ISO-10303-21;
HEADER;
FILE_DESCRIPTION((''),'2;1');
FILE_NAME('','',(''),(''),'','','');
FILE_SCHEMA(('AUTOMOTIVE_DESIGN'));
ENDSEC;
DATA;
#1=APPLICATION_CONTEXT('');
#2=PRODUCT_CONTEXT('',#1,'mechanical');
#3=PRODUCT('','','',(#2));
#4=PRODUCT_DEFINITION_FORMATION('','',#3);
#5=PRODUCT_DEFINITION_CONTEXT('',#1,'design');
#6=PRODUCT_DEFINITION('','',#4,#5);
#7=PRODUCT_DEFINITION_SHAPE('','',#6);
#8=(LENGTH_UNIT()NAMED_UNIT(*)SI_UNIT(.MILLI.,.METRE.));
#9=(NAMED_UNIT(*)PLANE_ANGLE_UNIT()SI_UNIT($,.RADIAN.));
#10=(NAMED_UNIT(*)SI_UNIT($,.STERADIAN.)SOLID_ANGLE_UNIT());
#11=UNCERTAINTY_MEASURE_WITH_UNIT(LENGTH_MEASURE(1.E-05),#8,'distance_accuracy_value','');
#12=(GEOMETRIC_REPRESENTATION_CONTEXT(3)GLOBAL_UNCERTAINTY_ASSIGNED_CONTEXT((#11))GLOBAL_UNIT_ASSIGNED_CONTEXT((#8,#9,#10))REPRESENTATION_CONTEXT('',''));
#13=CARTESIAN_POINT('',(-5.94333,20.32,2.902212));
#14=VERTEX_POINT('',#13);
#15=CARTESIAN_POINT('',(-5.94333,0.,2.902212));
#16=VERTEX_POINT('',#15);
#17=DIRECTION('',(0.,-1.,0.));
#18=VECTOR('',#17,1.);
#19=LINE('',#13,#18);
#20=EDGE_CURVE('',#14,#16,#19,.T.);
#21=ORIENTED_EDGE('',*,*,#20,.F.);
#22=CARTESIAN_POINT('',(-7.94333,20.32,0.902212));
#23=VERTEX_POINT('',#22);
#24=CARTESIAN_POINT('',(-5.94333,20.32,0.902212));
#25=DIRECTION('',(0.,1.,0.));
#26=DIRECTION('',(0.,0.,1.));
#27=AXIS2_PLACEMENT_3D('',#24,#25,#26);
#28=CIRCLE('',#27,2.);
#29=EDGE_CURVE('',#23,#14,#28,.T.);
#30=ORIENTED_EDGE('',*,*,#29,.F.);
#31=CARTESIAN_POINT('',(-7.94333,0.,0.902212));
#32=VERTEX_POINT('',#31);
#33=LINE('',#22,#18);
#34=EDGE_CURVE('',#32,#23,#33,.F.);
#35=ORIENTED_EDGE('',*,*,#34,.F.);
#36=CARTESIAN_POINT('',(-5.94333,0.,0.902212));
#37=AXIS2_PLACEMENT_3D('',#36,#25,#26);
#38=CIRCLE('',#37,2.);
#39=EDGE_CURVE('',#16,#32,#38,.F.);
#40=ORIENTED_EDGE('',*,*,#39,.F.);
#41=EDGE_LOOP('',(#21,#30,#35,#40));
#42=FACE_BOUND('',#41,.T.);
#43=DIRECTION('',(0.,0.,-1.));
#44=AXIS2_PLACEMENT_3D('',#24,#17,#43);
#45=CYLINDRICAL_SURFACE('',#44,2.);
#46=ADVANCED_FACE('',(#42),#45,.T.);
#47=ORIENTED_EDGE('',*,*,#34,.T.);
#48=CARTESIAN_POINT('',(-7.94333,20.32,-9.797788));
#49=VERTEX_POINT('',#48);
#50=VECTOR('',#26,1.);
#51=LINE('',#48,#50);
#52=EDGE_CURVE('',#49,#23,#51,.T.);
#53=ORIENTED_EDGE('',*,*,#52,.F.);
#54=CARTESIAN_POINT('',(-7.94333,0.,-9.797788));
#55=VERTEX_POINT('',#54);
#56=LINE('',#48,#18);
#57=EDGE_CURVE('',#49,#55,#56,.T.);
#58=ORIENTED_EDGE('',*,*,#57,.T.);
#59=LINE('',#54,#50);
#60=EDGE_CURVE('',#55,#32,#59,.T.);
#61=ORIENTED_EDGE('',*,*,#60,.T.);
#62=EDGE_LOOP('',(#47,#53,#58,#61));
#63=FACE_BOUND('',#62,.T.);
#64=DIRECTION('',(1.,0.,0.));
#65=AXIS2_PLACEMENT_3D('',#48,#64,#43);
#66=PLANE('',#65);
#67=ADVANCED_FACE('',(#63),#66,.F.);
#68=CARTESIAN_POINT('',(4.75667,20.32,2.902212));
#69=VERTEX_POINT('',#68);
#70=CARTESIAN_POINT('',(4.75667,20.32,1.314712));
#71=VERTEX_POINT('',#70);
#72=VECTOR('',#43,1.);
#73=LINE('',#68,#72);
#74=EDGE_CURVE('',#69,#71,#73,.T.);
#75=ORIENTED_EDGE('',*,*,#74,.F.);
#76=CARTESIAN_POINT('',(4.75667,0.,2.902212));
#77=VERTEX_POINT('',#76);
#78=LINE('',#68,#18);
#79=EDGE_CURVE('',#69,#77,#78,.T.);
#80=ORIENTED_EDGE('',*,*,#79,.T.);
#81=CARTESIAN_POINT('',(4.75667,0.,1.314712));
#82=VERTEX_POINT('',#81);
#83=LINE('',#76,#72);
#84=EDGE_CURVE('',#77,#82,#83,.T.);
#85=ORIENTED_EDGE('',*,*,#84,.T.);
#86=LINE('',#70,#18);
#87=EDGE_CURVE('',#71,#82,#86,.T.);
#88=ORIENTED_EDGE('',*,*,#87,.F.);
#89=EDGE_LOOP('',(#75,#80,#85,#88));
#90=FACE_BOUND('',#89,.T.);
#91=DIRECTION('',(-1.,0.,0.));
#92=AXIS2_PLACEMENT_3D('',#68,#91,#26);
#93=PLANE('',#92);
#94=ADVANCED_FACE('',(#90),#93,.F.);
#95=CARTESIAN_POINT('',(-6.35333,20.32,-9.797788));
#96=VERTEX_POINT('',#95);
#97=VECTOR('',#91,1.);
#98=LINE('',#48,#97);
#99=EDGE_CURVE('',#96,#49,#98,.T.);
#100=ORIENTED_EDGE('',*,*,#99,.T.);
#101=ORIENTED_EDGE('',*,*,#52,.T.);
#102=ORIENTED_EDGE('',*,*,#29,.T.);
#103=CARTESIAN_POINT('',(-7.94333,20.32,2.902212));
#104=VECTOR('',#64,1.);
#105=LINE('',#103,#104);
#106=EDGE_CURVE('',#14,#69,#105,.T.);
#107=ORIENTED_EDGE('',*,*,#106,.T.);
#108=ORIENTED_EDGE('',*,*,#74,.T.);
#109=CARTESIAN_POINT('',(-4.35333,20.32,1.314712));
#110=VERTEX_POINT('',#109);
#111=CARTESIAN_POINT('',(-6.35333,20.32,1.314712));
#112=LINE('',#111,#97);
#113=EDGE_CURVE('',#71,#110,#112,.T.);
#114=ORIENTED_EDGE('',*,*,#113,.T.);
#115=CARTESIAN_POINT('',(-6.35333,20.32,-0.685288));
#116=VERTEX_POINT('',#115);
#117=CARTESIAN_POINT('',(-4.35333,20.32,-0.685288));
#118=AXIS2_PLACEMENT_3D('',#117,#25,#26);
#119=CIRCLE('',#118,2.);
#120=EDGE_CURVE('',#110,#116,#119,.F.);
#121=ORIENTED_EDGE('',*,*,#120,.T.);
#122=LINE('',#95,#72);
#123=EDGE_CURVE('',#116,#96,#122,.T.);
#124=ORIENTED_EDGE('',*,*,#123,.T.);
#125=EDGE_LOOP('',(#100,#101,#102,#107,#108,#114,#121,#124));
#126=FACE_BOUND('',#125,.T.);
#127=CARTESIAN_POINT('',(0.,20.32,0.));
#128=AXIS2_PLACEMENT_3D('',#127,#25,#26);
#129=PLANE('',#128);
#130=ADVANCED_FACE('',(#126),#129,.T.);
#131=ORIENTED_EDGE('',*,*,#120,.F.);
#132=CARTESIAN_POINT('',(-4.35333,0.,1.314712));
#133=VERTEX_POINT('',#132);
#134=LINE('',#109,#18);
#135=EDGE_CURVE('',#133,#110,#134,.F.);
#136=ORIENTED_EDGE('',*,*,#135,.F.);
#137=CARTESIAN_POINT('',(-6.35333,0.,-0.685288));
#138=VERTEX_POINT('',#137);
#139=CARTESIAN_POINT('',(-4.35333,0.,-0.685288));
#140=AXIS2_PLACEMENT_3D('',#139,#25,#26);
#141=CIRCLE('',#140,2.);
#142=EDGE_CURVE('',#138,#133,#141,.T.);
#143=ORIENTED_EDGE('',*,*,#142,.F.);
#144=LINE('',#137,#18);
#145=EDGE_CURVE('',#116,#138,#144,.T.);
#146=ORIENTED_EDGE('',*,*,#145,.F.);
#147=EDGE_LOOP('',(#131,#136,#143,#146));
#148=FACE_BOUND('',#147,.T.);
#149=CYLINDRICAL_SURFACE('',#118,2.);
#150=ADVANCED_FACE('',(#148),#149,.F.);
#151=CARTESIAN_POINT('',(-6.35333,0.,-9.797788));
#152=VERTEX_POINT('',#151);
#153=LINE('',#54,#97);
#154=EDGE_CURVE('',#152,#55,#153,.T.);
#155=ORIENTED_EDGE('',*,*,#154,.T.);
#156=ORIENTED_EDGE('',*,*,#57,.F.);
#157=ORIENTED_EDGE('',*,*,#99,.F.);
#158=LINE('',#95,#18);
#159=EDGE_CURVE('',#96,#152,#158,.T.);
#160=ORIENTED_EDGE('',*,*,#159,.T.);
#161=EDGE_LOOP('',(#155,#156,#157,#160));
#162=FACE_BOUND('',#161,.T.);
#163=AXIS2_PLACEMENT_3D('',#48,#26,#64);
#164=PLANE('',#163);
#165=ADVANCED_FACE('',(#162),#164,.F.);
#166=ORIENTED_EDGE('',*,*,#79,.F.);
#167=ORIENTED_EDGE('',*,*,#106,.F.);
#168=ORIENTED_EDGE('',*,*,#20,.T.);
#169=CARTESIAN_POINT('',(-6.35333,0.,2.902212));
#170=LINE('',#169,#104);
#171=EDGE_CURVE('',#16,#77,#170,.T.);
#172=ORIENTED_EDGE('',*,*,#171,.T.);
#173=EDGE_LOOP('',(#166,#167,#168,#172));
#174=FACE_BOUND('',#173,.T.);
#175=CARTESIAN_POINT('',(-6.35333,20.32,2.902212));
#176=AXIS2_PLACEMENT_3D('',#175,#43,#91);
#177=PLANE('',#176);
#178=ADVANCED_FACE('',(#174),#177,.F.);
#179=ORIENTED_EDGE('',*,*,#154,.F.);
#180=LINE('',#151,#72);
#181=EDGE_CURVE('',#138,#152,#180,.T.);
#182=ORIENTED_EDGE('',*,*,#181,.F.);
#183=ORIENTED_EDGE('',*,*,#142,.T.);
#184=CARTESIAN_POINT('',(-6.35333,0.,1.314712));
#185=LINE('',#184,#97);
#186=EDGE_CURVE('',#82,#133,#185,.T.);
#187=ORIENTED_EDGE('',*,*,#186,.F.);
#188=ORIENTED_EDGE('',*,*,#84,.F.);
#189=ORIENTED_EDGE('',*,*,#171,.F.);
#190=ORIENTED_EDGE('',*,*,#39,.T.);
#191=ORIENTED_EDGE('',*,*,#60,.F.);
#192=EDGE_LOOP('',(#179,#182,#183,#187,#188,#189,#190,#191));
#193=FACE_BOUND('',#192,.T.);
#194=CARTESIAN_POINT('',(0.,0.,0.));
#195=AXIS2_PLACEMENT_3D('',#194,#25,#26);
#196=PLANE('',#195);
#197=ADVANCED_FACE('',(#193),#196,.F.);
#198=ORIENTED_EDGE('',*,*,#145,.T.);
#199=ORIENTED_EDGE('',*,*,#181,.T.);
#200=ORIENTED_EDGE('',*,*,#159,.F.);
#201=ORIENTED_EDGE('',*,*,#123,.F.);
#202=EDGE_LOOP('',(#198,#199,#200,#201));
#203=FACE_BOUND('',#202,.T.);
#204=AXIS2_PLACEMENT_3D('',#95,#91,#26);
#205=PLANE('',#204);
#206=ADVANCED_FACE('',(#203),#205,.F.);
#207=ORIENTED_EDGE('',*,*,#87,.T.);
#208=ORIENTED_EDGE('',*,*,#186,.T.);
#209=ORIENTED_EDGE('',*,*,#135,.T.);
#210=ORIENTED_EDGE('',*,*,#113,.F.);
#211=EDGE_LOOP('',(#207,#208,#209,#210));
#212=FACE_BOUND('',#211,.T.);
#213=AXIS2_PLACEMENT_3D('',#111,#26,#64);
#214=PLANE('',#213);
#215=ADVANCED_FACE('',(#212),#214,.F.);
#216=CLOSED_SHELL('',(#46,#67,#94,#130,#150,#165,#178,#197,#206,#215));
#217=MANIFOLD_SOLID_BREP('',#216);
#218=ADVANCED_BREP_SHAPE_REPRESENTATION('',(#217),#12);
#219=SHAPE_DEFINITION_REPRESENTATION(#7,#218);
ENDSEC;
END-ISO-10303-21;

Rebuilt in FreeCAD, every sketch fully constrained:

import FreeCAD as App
import Part
import Sketcher
Q = App.Units.Quantity


def edges_at(feature, points):
    """Names of the edges that pass closest to the given points."""
    edges = feature.Shape.Edges
    near = lambda p: min(range(len(edges)), key=lambda i: edges[i].distToShape(Part.Vertex(*p))[0])
    return sorted({f"Edge{near(p) + 1}" for p in points})


def add_polygon(sketch, points):
    """Adds a closed chain of lines whose ends are joined by coincident constraints."""
    first, n = sketch.GeometryCount, len(points)
    for a, b in zip(points, points[1:] + points[:1]):
        sketch.addGeometry(Part.LineSegment(App.Vector(*a, 0), App.Vector(*b, 0)), False)
    for i in range(n):
        sketch.addConstraint(Sketcher.Constraint("Coincident", first + i, 2, first + (i + 1) % n, 1))

doc = App.newDocument("Part")
body = doc.addObject("PartDesign::Body", "Body")

sketch1 = body.newObject("Sketcher::SketchObject", "Sketch")
sketch1.AttachmentSupport = (doc.getObject("XZ_Plane"), [""])
sketch1.MapMode = "FlatFace"
add_polygon(sketch1, [(-6.4, -9.8), (-7.9, -9.8), (-7.9, 2.9), (4.8, 2.9), (4.8, 1.3), (-6.4, 1.3)])
sketch1.addConstraint(Sketcher.Constraint("Horizontal", 0))
sketch1.addConstraint(Sketcher.Constraint("Vertical", 1))
sketch1.addConstraint(Sketcher.Constraint("Horizontal", 2))
sketch1.addConstraint(Sketcher.Constraint("Vertical", 3))
sketch1.addConstraint(Sketcher.Constraint("Horizontal", 4))
sketch1.addConstraint(Sketcher.Constraint("Vertical", 5))
sketch1.addConstraint(Sketcher.Constraint("Equal", 2, 1))
sketch1.addConstraint(Sketcher.Constraint("DistanceX", 2, 1, 2, 2, Q("0.5 in")))
sketch1.addConstraint(Sketcher.Constraint("DistanceY", 3, 2, 3, 1, Q("0.0625 in")))
sketch1.addConstraint(Sketcher.Constraint("DistanceX", 0, 2, 0, 1, 1.59))
sketch1.addConstraint(Sketcher.Constraint("DistanceX", 0, 2, -1, 1, 7.94333))
sketch1.addConstraint(Sketcher.Constraint("DistanceY", 0, 2, -1, 1, 9.797788))
pad1 = body.newObject("PartDesign::Pad", "Pad")
pad1.Profile = sketch1
pad1.Length = Q("0.8 in")
pad1.Reversed = True
doc.recompute()

fillet = body.newObject("PartDesign::Fillet", "Fillet")
fillet.Base = (pad1, edges_at(pad1, [(-6.353, 10.16, 1.315)]))
fillet.Radius = 2
doc.recompute()

fillet2 = body.newObject("PartDesign::Fillet", "Fillet001")
fillet2.Base = (fillet, edges_at(fillet, [(-7.943, 10.16, 2.902)]))
fillet2.Radius = 2

doc.recompute()
